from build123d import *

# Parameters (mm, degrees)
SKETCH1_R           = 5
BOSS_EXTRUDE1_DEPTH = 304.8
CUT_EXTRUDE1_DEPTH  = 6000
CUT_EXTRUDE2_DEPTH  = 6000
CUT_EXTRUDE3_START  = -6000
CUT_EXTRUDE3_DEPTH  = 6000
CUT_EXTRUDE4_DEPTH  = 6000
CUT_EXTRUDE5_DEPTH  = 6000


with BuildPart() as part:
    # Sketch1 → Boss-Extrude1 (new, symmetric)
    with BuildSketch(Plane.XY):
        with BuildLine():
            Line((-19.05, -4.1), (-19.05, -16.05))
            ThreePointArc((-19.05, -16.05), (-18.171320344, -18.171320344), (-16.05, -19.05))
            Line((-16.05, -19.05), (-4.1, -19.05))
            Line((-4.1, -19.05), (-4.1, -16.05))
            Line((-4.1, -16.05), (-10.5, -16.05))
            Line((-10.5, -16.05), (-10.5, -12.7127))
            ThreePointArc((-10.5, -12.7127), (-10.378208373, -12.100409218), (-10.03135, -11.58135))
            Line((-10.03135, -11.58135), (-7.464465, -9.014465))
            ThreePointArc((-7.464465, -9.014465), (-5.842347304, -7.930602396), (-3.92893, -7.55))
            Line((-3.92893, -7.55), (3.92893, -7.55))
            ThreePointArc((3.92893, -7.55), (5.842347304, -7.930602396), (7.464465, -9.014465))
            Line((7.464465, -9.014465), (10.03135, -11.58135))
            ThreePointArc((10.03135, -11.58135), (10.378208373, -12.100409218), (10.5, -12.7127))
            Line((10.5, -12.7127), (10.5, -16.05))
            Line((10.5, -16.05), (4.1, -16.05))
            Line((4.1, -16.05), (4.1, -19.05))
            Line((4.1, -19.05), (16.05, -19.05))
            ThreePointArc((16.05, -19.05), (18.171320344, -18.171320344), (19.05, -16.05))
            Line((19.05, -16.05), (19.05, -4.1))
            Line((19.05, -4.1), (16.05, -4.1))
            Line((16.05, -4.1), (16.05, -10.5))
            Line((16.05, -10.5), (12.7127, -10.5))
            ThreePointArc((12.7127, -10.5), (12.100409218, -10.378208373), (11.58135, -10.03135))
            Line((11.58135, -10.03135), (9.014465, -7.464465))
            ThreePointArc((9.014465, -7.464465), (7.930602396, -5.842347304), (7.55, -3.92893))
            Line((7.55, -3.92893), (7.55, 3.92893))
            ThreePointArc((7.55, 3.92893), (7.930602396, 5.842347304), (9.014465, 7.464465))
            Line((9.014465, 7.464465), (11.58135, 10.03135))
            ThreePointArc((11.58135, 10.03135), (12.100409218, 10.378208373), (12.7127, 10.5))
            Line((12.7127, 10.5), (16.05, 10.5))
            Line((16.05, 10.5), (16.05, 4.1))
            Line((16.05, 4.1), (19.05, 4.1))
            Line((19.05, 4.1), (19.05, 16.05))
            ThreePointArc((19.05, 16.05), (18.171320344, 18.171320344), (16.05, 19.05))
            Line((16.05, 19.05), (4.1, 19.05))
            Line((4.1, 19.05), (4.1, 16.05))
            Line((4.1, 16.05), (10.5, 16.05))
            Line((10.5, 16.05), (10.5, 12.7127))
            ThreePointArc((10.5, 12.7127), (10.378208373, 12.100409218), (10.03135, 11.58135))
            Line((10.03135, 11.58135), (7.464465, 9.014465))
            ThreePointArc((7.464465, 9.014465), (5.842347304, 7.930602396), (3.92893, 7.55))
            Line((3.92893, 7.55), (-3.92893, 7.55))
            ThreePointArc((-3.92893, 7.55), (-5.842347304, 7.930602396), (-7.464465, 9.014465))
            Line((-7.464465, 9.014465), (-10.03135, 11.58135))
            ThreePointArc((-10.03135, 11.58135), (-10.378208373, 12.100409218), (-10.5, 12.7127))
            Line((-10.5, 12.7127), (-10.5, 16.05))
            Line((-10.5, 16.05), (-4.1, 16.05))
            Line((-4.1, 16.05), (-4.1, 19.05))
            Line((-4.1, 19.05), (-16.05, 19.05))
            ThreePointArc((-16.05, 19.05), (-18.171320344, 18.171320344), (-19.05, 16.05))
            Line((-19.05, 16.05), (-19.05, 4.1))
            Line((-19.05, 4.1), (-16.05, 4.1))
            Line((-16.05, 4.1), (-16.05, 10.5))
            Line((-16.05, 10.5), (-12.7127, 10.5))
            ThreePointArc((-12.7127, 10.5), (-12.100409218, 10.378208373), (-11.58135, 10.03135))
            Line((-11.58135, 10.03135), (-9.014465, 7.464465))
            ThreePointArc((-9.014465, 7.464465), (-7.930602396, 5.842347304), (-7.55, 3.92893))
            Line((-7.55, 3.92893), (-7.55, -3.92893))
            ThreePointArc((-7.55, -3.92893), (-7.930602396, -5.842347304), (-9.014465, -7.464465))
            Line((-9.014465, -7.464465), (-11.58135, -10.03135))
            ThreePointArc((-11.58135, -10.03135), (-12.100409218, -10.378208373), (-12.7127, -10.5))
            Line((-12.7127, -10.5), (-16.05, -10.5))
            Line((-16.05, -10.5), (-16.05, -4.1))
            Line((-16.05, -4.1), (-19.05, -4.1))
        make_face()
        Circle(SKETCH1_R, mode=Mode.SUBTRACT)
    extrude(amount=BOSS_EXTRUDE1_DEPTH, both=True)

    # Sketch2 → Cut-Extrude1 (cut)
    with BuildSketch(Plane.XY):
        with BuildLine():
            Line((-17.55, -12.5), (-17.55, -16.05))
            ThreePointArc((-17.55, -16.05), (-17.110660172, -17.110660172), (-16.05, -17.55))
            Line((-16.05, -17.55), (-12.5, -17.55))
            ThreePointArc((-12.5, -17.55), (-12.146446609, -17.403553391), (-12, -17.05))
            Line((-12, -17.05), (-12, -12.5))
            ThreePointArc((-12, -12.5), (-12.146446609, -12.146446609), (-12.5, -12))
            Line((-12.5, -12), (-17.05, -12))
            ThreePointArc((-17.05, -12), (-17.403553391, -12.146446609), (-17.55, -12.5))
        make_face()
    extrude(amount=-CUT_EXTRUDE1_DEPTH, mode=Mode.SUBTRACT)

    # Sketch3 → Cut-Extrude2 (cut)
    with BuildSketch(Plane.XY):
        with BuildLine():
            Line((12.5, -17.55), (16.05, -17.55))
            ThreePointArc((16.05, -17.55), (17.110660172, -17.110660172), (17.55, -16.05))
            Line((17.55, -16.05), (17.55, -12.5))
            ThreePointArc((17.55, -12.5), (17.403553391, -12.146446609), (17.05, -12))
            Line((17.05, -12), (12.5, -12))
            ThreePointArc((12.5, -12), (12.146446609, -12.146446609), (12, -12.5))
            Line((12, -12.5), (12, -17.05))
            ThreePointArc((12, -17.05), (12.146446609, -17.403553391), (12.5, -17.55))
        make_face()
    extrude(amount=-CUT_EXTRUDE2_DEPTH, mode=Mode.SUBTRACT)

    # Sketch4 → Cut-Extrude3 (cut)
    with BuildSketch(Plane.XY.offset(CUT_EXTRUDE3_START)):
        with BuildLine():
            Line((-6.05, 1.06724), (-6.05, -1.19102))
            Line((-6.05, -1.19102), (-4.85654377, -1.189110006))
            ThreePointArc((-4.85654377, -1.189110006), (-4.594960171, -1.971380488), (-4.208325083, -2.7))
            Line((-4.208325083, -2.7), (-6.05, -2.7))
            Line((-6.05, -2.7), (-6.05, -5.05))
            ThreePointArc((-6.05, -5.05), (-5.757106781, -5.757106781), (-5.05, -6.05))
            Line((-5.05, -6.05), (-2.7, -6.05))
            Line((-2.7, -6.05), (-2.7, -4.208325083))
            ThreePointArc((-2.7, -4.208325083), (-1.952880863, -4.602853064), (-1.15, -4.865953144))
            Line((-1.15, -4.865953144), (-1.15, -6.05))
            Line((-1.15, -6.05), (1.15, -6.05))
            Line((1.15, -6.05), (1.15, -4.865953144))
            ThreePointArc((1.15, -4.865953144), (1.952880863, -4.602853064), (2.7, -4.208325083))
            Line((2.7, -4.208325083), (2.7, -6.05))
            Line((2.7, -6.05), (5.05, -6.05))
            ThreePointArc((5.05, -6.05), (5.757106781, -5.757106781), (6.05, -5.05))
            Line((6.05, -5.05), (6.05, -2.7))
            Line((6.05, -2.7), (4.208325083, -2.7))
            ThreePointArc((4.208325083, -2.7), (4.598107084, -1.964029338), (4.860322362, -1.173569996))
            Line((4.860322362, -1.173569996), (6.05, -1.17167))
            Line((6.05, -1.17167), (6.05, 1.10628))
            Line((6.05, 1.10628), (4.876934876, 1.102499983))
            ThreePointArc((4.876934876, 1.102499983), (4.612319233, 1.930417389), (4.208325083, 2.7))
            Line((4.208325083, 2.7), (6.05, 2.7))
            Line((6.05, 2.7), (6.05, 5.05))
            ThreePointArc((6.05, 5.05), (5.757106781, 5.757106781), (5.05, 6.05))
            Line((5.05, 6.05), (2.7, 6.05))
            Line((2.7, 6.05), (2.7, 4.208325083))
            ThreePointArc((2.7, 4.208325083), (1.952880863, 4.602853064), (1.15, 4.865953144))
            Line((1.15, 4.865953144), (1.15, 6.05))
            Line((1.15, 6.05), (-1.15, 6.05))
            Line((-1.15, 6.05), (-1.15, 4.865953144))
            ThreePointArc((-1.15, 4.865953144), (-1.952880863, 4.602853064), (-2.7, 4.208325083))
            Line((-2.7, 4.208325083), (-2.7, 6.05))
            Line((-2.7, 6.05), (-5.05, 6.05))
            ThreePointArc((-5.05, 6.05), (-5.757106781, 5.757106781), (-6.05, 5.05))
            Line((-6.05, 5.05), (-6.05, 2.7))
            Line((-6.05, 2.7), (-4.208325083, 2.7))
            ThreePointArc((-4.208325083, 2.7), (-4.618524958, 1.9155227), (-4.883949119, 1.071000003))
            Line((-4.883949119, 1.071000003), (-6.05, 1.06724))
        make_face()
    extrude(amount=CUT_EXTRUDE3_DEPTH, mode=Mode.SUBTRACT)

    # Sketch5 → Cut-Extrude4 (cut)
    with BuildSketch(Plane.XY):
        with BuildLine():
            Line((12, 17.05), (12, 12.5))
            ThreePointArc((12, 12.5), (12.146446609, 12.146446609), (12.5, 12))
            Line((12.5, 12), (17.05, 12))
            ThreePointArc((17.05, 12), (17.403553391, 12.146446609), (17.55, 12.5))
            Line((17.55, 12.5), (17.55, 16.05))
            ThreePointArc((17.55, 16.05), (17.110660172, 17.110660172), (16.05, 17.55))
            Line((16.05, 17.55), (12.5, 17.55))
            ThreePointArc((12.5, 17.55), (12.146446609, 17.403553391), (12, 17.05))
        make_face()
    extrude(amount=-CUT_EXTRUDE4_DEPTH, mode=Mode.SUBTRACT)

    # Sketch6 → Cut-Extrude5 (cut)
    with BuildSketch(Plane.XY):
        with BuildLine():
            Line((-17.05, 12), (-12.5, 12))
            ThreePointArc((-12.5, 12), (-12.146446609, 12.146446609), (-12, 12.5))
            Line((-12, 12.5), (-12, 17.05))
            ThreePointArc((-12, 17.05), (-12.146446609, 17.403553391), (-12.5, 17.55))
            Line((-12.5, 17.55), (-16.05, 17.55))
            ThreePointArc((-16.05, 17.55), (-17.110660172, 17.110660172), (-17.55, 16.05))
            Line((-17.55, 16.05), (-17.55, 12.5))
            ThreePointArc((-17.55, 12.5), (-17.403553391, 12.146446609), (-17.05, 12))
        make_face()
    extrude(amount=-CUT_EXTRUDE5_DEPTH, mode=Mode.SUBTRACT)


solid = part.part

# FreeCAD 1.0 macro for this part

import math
import FreeCAD as App
import Part
import Sketcher
from FreeCAD import Vector

doc = App.newDocument("Part")
params = doc.addObject("Spreadsheet::Sheet", "Params")
for row, (alias, value) in enumerate([
    ("sketch1_diameter", "10 mm"),
    ("sketch1_radius", "3 mm"),
    ("sketch1_width", "6.4 mm"),
    ("sketch1_width2", "11.95 mm"),
    ("pad1_length", "609.6 mm"),
    ("sketch2_radius", "1.5 mm"),
    ("sketch2_radius2", "0.5 mm"),
    ("sketch2_width", "3.55 mm"),
    ("pocket1_length", "6000 mm"),
    ("sketch3_radius", "1.5 mm"),
    ("sketch3_radius2", "0.5 mm"),
    ("sketch3_width", "3.55 mm"),
    ("pocket2_length", "6000 mm"),
    ("sketch4_radius", "5 mm"),
    ("sketch4_radius2", "1 mm"),
    ("sketch4_width", "2.3 mm"),
    ("sketch4_width2", "2.35 mm"),
    ("pocket3_length", "6000 mm"),
    ("sketch5_radius", "0.5 mm"),
    ("sketch5_radius2", "1.5 mm"),
    ("sketch5_width", "4.55 mm"),
    ("pocket4_length", "6000 mm"),
    ("sketch6_radius", "0.5 mm"),
    ("sketch6_radius2", "1.5 mm"),
    ("sketch6_width", "4.55 mm"),
    ("pocket5_length", "6000 mm"),
], start=1):
    params.set(f"A{row}", alias)
    params.set(f"B{row}", "=" + value)
    params.setAlias(f"B{row}", alias)

body = doc.addObject("PartDesign::Body", "Body")

# Sketch on XY plane
sketch1 = body.newObject("Sketcher::SketchObject", "Sketch")
sketch1.AttachmentSupport = (doc.getObject("XY_Plane"), [""])
sketch1.MapMode = "FlatFace"
sketch1.addGeometry([
    Part.LineSegment(Vector(-19.1, -4.1, 0), Vector(-19.1, -16.1, 0)),  # 0
    Part.ArcOfCircle(Part.Circle(Vector(-16.1, -16.1, 0), Vector(0, 0, 1), 3), math.radians(180), math.radians(270)),  # 1
    Part.LineSegment(Vector(-16.1, -19.1, 0), Vector(-4.1, -19.1, 0)),  # 2
    Part.LineSegment(Vector(-4.1, -19.1, 0), Vector(-4.1, -16.1, 0)),  # 3
    Part.LineSegment(Vector(-4.1, -16.1, 0), Vector(-10.5, -16.1, 0)),  # 4
    Part.LineSegment(Vector(-10.5, -16.1, 0), Vector(-10.5, -12.7, 0)),  # 5
    Part.ArcOfCircle(Part.Circle(Vector(-8.9, -12.7, 0), Vector(0, 0, 1), 1.6), math.radians(135), math.radians(180)),  # 6
    Part.LineSegment(Vector(-10, -11.6, 0), Vector(-7.5, -9, 0)),  # 7
    Part.ArcOfCircle(Part.Circle(Vector(-3.9, -12.6, 0), Vector(0, 0, 1), 5), math.radians(90), math.radians(135)),  # 8
    Part.LineSegment(Vector(-3.9, -7.5, 0), Vector(3.9, -7.5, 0)),  # 9
    Part.ArcOfCircle(Part.Circle(Vector(3.9, -12.6, 0), Vector(0, 0, 1), 5), math.radians(45), math.radians(90)),  # 10
    Part.LineSegment(Vector(7.5, -9, 0), Vector(10, -11.6, 0)),  # 11
    Part.ArcOfCircle(Part.Circle(Vector(8.9, -12.7, 0), Vector(0, 0, 1), 1.6), math.radians(0), math.radians(45)),  # 12
    Part.LineSegment(Vector(10.5, -12.7, 0), Vector(10.5, -16.1, 0)),  # 13
    Part.LineSegment(Vector(10.5, -16.1, 0), Vector(4.1, -16.1, 0)),  # 14
    Part.LineSegment(Vector(4.1, -16.1, 0), Vector(4.1, -19.1, 0)),  # 15
    Part.LineSegment(Vector(4.1, -19.1, 0), Vector(16.1, -19.1, 0)),  # 16
    Part.ArcOfCircle(Part.Circle(Vector(16.1, -16.1, 0), Vector(0, 0, 1), 3), math.radians(-90), math.radians(0)),  # 17
    Part.LineSegment(Vector(19.1, -16.1, 0), Vector(19.1, -4.1, 0)),  # 18
    Part.LineSegment(Vector(19.1, -4.1, 0), Vector(16.1, -4.1, 0)),  # 19
    Part.LineSegment(Vector(16.1, -4.1, 0), Vector(16.1, -10.5, 0)),  # 20
    Part.LineSegment(Vector(16.1, -10.5, 0), Vector(12.7, -10.5, 0)),  # 21
    Part.ArcOfCircle(Part.Circle(Vector(12.7, -8.9, 0), Vector(0, 0, 1), 1.6), math.radians(-135), math.radians(-90)),  # 22
    Part.LineSegment(Vector(11.6, -10, 0), Vector(9, -7.5, 0)),  # 23
    Part.ArcOfCircle(Part.Circle(Vector(12.6, -3.9, 0), Vector(0, 0, 1), 5), math.radians(-180), math.radians(-135)),  # 24
    Part.LineSegment(Vector(7.5, -3.9, 0), Vector(7.5, 3.9, 0)),  # 25
    Part.ArcOfCircle(Part.Circle(Vector(12.6, 3.9, 0), Vector(0, 0, 1), 5), math.radians(135), math.radians(180)),  # 26
    Part.LineSegment(Vector(9, 7.5, 0), Vector(11.6, 10, 0)),  # 27
    Part.ArcOfCircle(Part.Circle(Vector(12.7, 8.9, 0), Vector(0, 0, 1), 1.6), math.radians(90), math.radians(135)),  # 28
    Part.LineSegment(Vector(12.7, 10.5, 0), Vector(16.1, 10.5, 0)),  # 29
    Part.LineSegment(Vector(16.1, 10.5, 0), Vector(16.1, 4.1, 0)),  # 30
    Part.LineSegment(Vector(16.1, 4.1, 0), Vector(19.1, 4.1, 0)),  # 31
    Part.LineSegment(Vector(19.1, 4.1, 0), Vector(19.1, 16.1, 0)),  # 32
    Part.ArcOfCircle(Part.Circle(Vector(16.1, 16.1, 0), Vector(0, 0, 1), 3), math.radians(0), math.radians(90)),  # 33
    Part.LineSegment(Vector(16.1, 19.1, 0), Vector(4.1, 19.1, 0)),  # 34
    Part.LineSegment(Vector(4.1, 19.1, 0), Vector(4.1, 16.1, 0)),  # 35
    Part.LineSegment(Vector(4.1, 16.1, 0), Vector(10.5, 16.1, 0)),  # 36
    Part.LineSegment(Vector(10.5, 16.1, 0), Vector(10.5, 12.7, 0)),  # 37
    Part.ArcOfCircle(Part.Circle(Vector(8.9, 12.7, 0), Vector(0, 0, 1), 1.6), math.radians(-45), math.radians(0)),  # 38
    Part.LineSegment(Vector(10, 11.6, 0), Vector(7.5, 9, 0)),  # 39
    Part.ArcOfCircle(Part.Circle(Vector(3.9, 12.6, 0), Vector(0, 0, 1), 5), math.radians(-90), math.radians(-45)),  # 40
    Part.LineSegment(Vector(3.9, 7.5, 0), Vector(-3.9, 7.5, 0)),  # 41
    Part.ArcOfCircle(Part.Circle(Vector(-3.9, 12.6, 0), Vector(0, 0, 1), 5), math.radians(-135), math.radians(-90)),  # 42
    Part.LineSegment(Vector(-7.5, 9, 0), Vector(-10, 11.6, 0)),  # 43
    Part.ArcOfCircle(Part.Circle(Vector(-8.9, 12.7, 0), Vector(0, 0, 1), 1.6), math.radians(180), math.radians(225)),  # 44
    Part.LineSegment(Vector(-10.5, 12.7, 0), Vector(-10.5, 16.1, 0)),  # 45
    Part.LineSegment(Vector(-10.5, 16.1, 0), Vector(-4.1, 16.1, 0)),  # 46
    Part.LineSegment(Vector(-4.1, 16.1, 0), Vector(-4.1, 19.1, 0)),  # 47
    Part.LineSegment(Vector(-4.1, 19.1, 0), Vector(-16.1, 19.1, 0)),  # 48
    Part.ArcOfCircle(Part.Circle(Vector(-16.1, 16.1, 0), Vector(0, 0, 1), 3), math.radians(90), math.radians(180)),  # 49
    Part.LineSegment(Vector(-19.1, 16.1, 0), Vector(-19.1, 4.1, 0)),  # 50
    Part.LineSegment(Vector(-19.1, 4.1, 0), Vector(-16.1, 4.1, 0)),  # 51
    Part.LineSegment(Vector(-16.1, 4.1, 0), Vector(-16.1, 10.5, 0)),  # 52
    Part.LineSegment(Vector(-16.1, 10.5, 0), Vector(-12.7, 10.5, 0)),  # 53
    Part.ArcOfCircle(Part.Circle(Vector(-12.7, 8.9, 0), Vector(0, 0, 1), 1.6), math.radians(45), math.radians(90)),  # 54
    Part.LineSegment(Vector(-11.6, 10, 0), Vector(-9, 7.5, 0)),  # 55
    Part.ArcOfCircle(Part.Circle(Vector(-12.6, 3.9, 0), Vector(0, 0, 1), 5), math.radians(0), math.radians(45)),  # 56
    Part.LineSegment(Vector(-7.5, 3.9, 0), Vector(-7.5, -3.9, 0)),  # 57
    Part.ArcOfCircle(Part.Circle(Vector(-12.6, -3.9, 0), Vector(0, 0, 1), 5), math.radians(-45), math.radians(0)),  # 58
    Part.LineSegment(Vector(-9, -7.5, 0), Vector(-11.6, -10, 0)),  # 59
    Part.ArcOfCircle(Part.Circle(Vector(-12.7, -8.9, 0), Vector(0, 0, 1), 1.6), math.radians(-90), math.radians(-45)),  # 60
    Part.LineSegment(Vector(-12.7, -10.5, 0), Vector(-16.1, -10.5, 0)),  # 61
    Part.LineSegment(Vector(-16.1, -10.5, 0), Vector(-16.1, -4.1, 0)),  # 62
    Part.LineSegment(Vector(-16.1, -4.1, 0), Vector(-19.1, -4.1, 0)),  # 63
    Part.Circle(Vector(0, 0, 0), Vector(0, 0, 1), 5),  # 64
], False)
sketch1.addConstraint([
    Sketcher.Constraint("Tangent", 0, 2, 1, 1),
    Sketcher.Constraint("Tangent", 1, 2, 2, 1),
    Sketcher.Constraint("Coincident", 2, 2, 3, 1),
    Sketcher.Constraint("Coincident", 3, 2, 4, 1),
    Sketcher.Constraint("Coincident", 4, 2, 5, 1),
    Sketcher.Constraint("Coincident", 5, 2, 6, 2),
    Sketcher.Constraint("Coincident", 6, 1, 7, 1),
    Sketcher.Constraint("Tangent", 7, 2, 8, 2),
    Sketcher.Constraint("Tangent", 8, 1, 9, 1),
    Sketcher.Constraint("Tangent", 9, 2, 10, 2),
    Sketcher.Constraint("Tangent", 10, 1, 11, 1),
    Sketcher.Constraint("Coincident", 11, 2, 12, 2),
    Sketcher.Constraint("Coincident", 12, 1, 13, 1),
    Sketcher.Constraint("Coincident", 13, 2, 14, 1),
    Sketcher.Constraint("Coincident", 14, 2, 15, 1),
    Sketcher.Constraint("Coincident", 15, 2, 16, 1),
    Sketcher.Constraint("Tangent", 16, 2, 17, 1),
    Sketcher.Constraint("Tangent", 17, 2, 18, 1),
    Sketcher.Constraint("Coincident", 18, 2, 19, 1),
    Sketcher.Constraint("Coincident", 19, 2, 20, 1),
    Sketcher.Constraint("Coincident", 20, 2, 21, 1),
    Sketcher.Constraint("Coincident", 21, 2, 22, 2),
    Sketcher.Constraint("Coincident", 22, 1, 23, 1),
    Sketcher.Constraint("Tangent", 23, 2, 24, 2),
    Sketcher.Constraint("Tangent", 24, 1, 25, 1),
    Sketcher.Constraint("Tangent", 25, 2, 26, 2),
    Sketcher.Constraint("Tangent", 26, 1, 27, 1),
    Sketcher.Constraint("Coincident", 27, 2, 28, 2),
    Sketcher.Constraint("Coincident", 28, 1, 29, 1),
    Sketcher.Constraint("Coincident", 29, 2, 30, 1),
    Sketcher.Constraint("Coincident", 30, 2, 31, 1),
    Sketcher.Constraint("Coincident", 31, 2, 32, 1),
    Sketcher.Constraint("Tangent", 32, 2, 33, 1),
    Sketcher.Constraint("Tangent", 33, 2, 34, 1),
    Sketcher.Constraint("Coincident", 34, 2, 35, 1),
    Sketcher.Constraint("Coincident", 35, 2, 36, 1),
    Sketcher.Constraint("Coincident", 36, 2, 37, 1),
    Sketcher.Constraint("Coincident", 37, 2, 38, 2),
    Sketcher.Constraint("Coincident", 38, 1, 39, 1),
    Sketcher.Constraint("Tangent", 39, 2, 40, 2),
    Sketcher.Constraint("Tangent", 40, 1, 41, 1),
    Sketcher.Constraint("Tangent", 41, 2, 42, 2),
    Sketcher.Constraint("Tangent", 42, 1, 43, 1),
    Sketcher.Constraint("Coincident", 43, 2, 44, 2),
    Sketcher.Constraint("Coincident", 44, 1, 45, 1),
    Sketcher.Constraint("Coincident", 45, 2, 46, 1),
    Sketcher.Constraint("Coincident", 46, 2, 47, 1),
    Sketcher.Constraint("Coincident", 47, 2, 48, 1),
    Sketcher.Constraint("Tangent", 48, 2, 49, 1),
    Sketcher.Constraint("Tangent", 49, 2, 50, 1),
    Sketcher.Constraint("Coincident", 50, 2, 51, 1),
    Sketcher.Constraint("Coincident", 51, 2, 52, 1),
    Sketcher.Constraint("Coincident", 52, 2, 53, 1),
    Sketcher.Constraint("Coincident", 53, 2, 54, 2),
    Sketcher.Constraint("Coincident", 54, 1, 55, 1),
    Sketcher.Constraint("Tangent", 55, 2, 56, 2),
    Sketcher.Constraint("Tangent", 56, 1, 57, 1),
    Sketcher.Constraint("Tangent", 57, 2, 58, 2),
    Sketcher.Constraint("Tangent", 58, 1, 59, 1),
    Sketcher.Constraint("Coincident", 59, 2, 60, 2),
    Sketcher.Constraint("Coincident", 60, 1, 61, 1),
    Sketcher.Constraint("Coincident", 61, 2, 62, 1),
    Sketcher.Constraint("Coincident", 62, 2, 63, 1),
    Sketcher.Constraint("Coincident", 63, 2, 0, 1),
    Sketcher.Constraint("Vertical", 0),
    Sketcher.Constraint("Horizontal", 2),
    Sketcher.Constraint("Vertical", 3),
    Sketcher.Constraint("Horizontal", 4),
    Sketcher.Constraint("Vertical", 5),
    Sketcher.Constraint("Horizontal", 9),
    Sketcher.Constraint("Vertical", 13),
    Sketcher.Constraint("Horizontal", 14),
    Sketcher.Constraint("Vertical", 15),
    Sketcher.Constraint("Horizontal", 16),
    Sketcher.Constraint("Vertical", 18),
    Sketcher.Constraint("Horizontal", 19),
    Sketcher.Constraint("Vertical", 20),
    Sketcher.Constraint("Horizontal", 21),
    Sketcher.Constraint("Vertical", 25),
    Sketcher.Constraint("Horizontal", 29),
    Sketcher.Constraint("Vertical", 30),
    Sketcher.Constraint("Horizontal", 31),
    Sketcher.Constraint("Vertical", 32),
    Sketcher.Constraint("Horizontal", 34),
    Sketcher.Constraint("Vertical", 35),
    Sketcher.Constraint("Horizontal", 36),
    Sketcher.Constraint("Vertical", 37),
    Sketcher.Constraint("Horizontal", 41),
    Sketcher.Constraint("Vertical", 45),
    Sketcher.Constraint("Horizontal", 46),
    Sketcher.Constraint("Vertical", 47),
    Sketcher.Constraint("Horizontal", 48),
    Sketcher.Constraint("Vertical", 50),
    Sketcher.Constraint("Horizontal", 51),
    Sketcher.Constraint("Vertical", 52),
    Sketcher.Constraint("Horizontal", 53),
    Sketcher.Constraint("Vertical", 57),
    Sketcher.Constraint("Horizontal", 61),
    Sketcher.Constraint("Vertical", 62),
    Sketcher.Constraint("Horizontal", 63),
    Sketcher.Constraint("Coincident", 64, 3, -1, 1),
    Sketcher.Constraint("Equal", 8, 10),
    Sketcher.Constraint("Equal", 6, 12),
    Sketcher.Constraint("Equal", 1, 17),
    Sketcher.Constraint("Equal", 12, 22),
    Sketcher.Constraint("Equal", 10, 24),
    Sketcher.Constraint("Equal", 24, 26),
    Sketcher.Constraint("Equal", 22, 28),
    Sketcher.Constraint("Equal", 17, 33),
    Sketcher.Constraint("Equal", 28, 38),
    Sketcher.Constraint("Equal", 26, 40),
    Sketcher.Constraint("Equal", 40, 42),
    Sketcher.Constraint("Equal", 38, 44),
    Sketcher.Constraint("Equal", 33, 49),
    Sketcher.Constraint("Equal", 44, 54),
    Sketcher.Constraint("Equal", 42, 56),
    Sketcher.Constraint("Equal", 56, 58),
    Sketcher.Constraint("Equal", 54, 60),
    Sketcher.Constraint("Symmetric", 1, 3, 33, 3, -1, 1),
    Sketcher.Constraint("Symmetric", 6, 3, 38, 3, -1, 1),
    Sketcher.Constraint("Symmetric", 8, 3, 40, 3, -1, 1),
    Sketcher.Constraint("Symmetric", 12, 3, 44, 3, -1, 1),
    Sketcher.Constraint("Symmetric", 17, 3, 49, 3, -1, 1),
    Sketcher.Constraint("Symmetric", 22, 3, 54, 3, -1, 1),
    Sketcher.Constraint("Symmetric", 24, 3, 56, 3, -1, 1),
    Sketcher.Constraint("Symmetric", 28, 3, 60, 3, -1, 1),
    Sketcher.Constraint("Symmetric", 3, 2, 35, 2, -1, 1),
    Sketcher.Constraint("Symmetric", 14, 2, 46, 2, -1, 1),
    Sketcher.Constraint("Symmetric", 19, 2, 51, 2, -1, 1),
    Sketcher.Constraint("Symmetric", 30, 2, 62, 2, -1, 1),
    Sketcher.Constraint("Symmetric", 6, 3, 12, 3, -2),
    Sketcher.Constraint("Symmetric", 1, 3, 17, 3, -2),
    Sketcher.Constraint("Symmetric", 28, 3, 54, 3, -2),
    Sketcher.Constraint("Symmetric", 3, 2, 14, 2, -2),
    Sketcher.Constraint("Symmetric", 30, 2, 51, 2, -2),
    Sketcher.Constraint("Perpendicular", 7, 11),
    Sketcher.Constraint("Parallel", 11, 23),
    Sketcher.Constraint("Perpendicular", 23, 27),
    Sketcher.Constraint("Perpendicular", 39, 43),
    Sketcher.Constraint("Perpendicular", 55, 59),
    Sketcher.Constraint("Horizontal", 26, 3, 56, 3),
    Sketcher.Constraint("Horizontal", 0, 2, 3, 2),
    Sketcher.Constraint("Horizontal", 6, 1, 11, 2),
    Sketcher.Constraint("Horizontal", 5, 2, 12, 1),
    Sketcher.Constraint("Horizontal", 38, 1, 43, 2),
    Sketcher.Constraint("Horizontal", 37, 2, 44, 1),
    Sketcher.Constraint("Horizontal", 27, 2, 54, 1),
    Sketcher.Constraint("Horizontal", 22, 1, 59, 2),
    Sketcher.Constraint("Vertical", 16, 2, 19, 2),
    Sketcher.Constraint("Vertical", 22, 1, 27, 2),
    Sketcher.Constraint("Vertical", 21, 2, 28, 1),
    Sketcher.Constraint("Vertical", 11, 2, 38, 1),
    Sketcher.Constraint("Vertical", 53, 2, 60, 1),
    Sketcher.Constraint("Equal", 29, 53),
    Sketcher.Constraint("Equal", 48, 0),
    Sketcher.Constraint("Equal", 61, 5),
    Sketcher.Constraint("Equal", 46, 20),
    Sketcher.Constraint("Equal", 41, 25),
    Sketcher.Constraint("Equal", 13, 37),
    Sketcher.Constraint("Equal", 11, 23),
    Sketcher.Constraint("Diameter", 64, 10.0),
    Sketcher.Constraint("Radius", 1, 3.0),
    Sketcher.Constraint("DistanceX", 4, 2, 4, 1, 6.4),
    Sketcher.Constraint("DistanceX", 2, 1, 2, 2, 11.95),
    Sketcher.Constraint("DistanceX", 2, 2, -1, 1, 4.1),
    Sketcher.Constraint("DistanceY", 18, 2, -1, 1, 4.1),
    Sketcher.Constraint("DistanceY", 8, 1, -1, 1, 7.55),
    Sketcher.Constraint("DistanceX", -1, 1, 24, 1, 7.55),
    Sketcher.Constraint("Radius", 8, 5.00001),
    Sketcher.Constraint("DistanceX", 21, 2, 21, 1, 3.3373),
    Sketcher.Constraint("Radius", 6, 1.599806),
    Sketcher.Constraint("DistanceX", 9, 1, 9, 2, 7.85786),
    Sketcher.Constraint("DistanceX", 6, 1, -1, 1, 10.03135),
])
sketch1.setExpression("Constraints[160]", "Params.sketch1_diameter")
sketch1.setExpression("Constraints[161]", "Params.sketch1_radius")
sketch1.setExpression("Constraints[162]", "Params.sketch1_width")
sketch1.setExpression("Constraints[163]", "Params.sketch1_width2")
pad1 = body.newObject("PartDesign::Pad", "Pad")
pad1.Profile = sketch1
pad1.setExpression("Length", "Params.pad1_length")
pad1.Midplane = True

# Sketch on XY plane
sketch2 = body.newObject("Sketcher::SketchObject", "Sketch001")
sketch2.AttachmentSupport = (doc.getObject("XY_Plane"), [""])
sketch2.MapMode = "FlatFace"
sketch2.addGeometry([
    Part.LineSegment(Vector(-17.55, -12.5, 0), Vector(-17.55, -16.05, 0)),  # 0
    Part.ArcOfCircle(Part.Circle(Vector(-16.05, -16.05, 0), Vector(0, 0, 1), 1.5), math.radians(180), math.radians(270)),  # 1
    Part.LineSegment(Vector(-16.05, -17.55, 0), Vector(-12.5, -17.55, 0)),  # 2
    Part.ArcOfCircle(Part.Circle(Vector(-12.5, -17.05, 0), Vector(0, 0, 1), 0.5), math.radians(-90), math.radians(0)),  # 3
    Part.LineSegment(Vector(-12, -17.05, 0), Vector(-12, -12.5, 0)),  # 4
    Part.ArcOfCircle(Part.Circle(Vector(-12.5, -12.5, 0), Vector(0, 0, 1), 0.5), math.radians(0), math.radians(90)),  # 5
    Part.LineSegment(Vector(-12.5, -12, 0), Vector(-17.05, -12, 0)),  # 6
    Part.ArcOfCircle(Part.Circle(Vector(-17.05, -12.5, 0), Vector(0, 0, 1), 0.5), math.radians(90), math.radians(180)),  # 7
], False)
sketch2.addConstraint([
    Sketcher.Constraint("Tangent", 0, 2, 1, 1),
    Sketcher.Constraint("Tangent", 1, 2, 2, 1),
    Sketcher.Constraint("Tangent", 2, 2, 3, 1),
    Sketcher.Constraint("Tangent", 3, 2, 4, 1),
    Sketcher.Constraint("Tangent", 4, 2, 5, 1),
    Sketcher.Constraint("Tangent", 5, 2, 6, 1),
    Sketcher.Constraint("Tangent", 6, 2, 7, 1),
    Sketcher.Constraint("Tangent", 7, 2, 0, 1),
    Sketcher.Constraint("Vertical", 0),
    Sketcher.Constraint("Horizontal", 2),
    Sketcher.Constraint("Vertical", 4),
    Sketcher.Constraint("Horizontal", 6),
    Sketcher.Constraint("Equal", 3, 5),
    Sketcher.Constraint("Equal", 5, 7),
    Sketcher.Constraint("Equal", 2, 0),
    Sketcher.Constraint("Radius", 1, 1.5),
    Sketcher.Constraint("Radius", 3, 0.5),
    Sketcher.Constraint("DistanceX", 3, 2, -1, 1, 12.0),
    Sketcher.Constraint("DistanceY", 5, 2, -1, 1, 12.0),
    Sketcher.Constraint("DistanceX", 2, 1, 2, 2, 3.55),
])
sketch2.setExpression("Constraints[15]", "Params.sketch2_radius")
sketch2.setExpression("Constraints[16]", "Params.sketch2_radius2")
sketch2.setExpression("Constraints[19]", "Params.sketch2_width")
pocket1 = body.newObject("PartDesign::Pocket", "Pocket")
pocket1.Profile = sketch2
pocket1.setExpression("Length", "Params.pocket1_length")

# Sketch on XY plane
sketch3 = body.newObject("Sketcher::SketchObject", "Sketch002")
sketch3.AttachmentSupport = (doc.getObject("XY_Plane"), [""])
sketch3.MapMode = "FlatFace"
sketch3.addGeometry([
    Part.LineSegment(Vector(12.5, -17.55, 0), Vector(16.05, -17.55, 0)),  # 0
    Part.ArcOfCircle(Part.Circle(Vector(16.05, -16.05, 0), Vector(0, 0, 1), 1.5), math.radians(-90), math.radians(0)),  # 1
    Part.LineSegment(Vector(17.55, -16.05, 0), Vector(17.55, -12.5, 0)),  # 2
    Part.ArcOfCircle(Part.Circle(Vector(17.05, -12.5, 0), Vector(0, 0, 1), 0.5), math.radians(0), math.radians(90)),  # 3
    Part.LineSegment(Vector(17.05, -12, 0), Vector(12.5, -12, 0)),  # 4
    Part.ArcOfCircle(Part.Circle(Vector(12.5, -12.5, 0), Vector(0, 0, 1), 0.5), math.radians(90), math.radians(180)),  # 5
    Part.LineSegment(Vector(12, -12.5, 0), Vector(12, -17.05, 0)),  # 6
    Part.ArcOfCircle(Part.Circle(Vector(12.5, -17.05, 0), Vector(0, 0, 1), 0.5), math.radians(180), math.radians(270)),  # 7
], False)
sketch3.addConstraint([
    Sketcher.Constraint("Tangent", 0, 2, 1, 1),
    Sketcher.Constraint("Tangent", 1, 2, 2, 1),
    Sketcher.Constraint("Tangent", 2, 2, 3, 1),
    Sketcher.Constraint("Tangent", 3, 2, 4, 1),
    Sketcher.Constraint("Tangent", 4, 2, 5, 1),
    Sketcher.Constraint("Tangent", 5, 2, 6, 1),
    Sketcher.Constraint("Tangent", 6, 2, 7, 1),
    Sketcher.Constraint("Tangent", 7, 2, 0, 1),
    Sketcher.Constraint("Horizontal", 0),
    Sketcher.Constraint("Vertical", 2),
    Sketcher.Constraint("Horizontal", 4),
    Sketcher.Constraint("Vertical", 6),
    Sketcher.Constraint("Equal", 3, 5),
    Sketcher.Constraint("Equal", 5, 7),
    Sketcher.Constraint("Equal", 0, 2),
    Sketcher.Constraint("Radius", 1, 1.5),
    Sketcher.Constraint("Radius", 3, 0.5),
    Sketcher.Constraint("DistanceY", 3, 2, -1, 1, 12.0),
    Sketcher.Constraint("DistanceX", -1, 1, 5, 2, 12.0),
    Sketcher.Constraint("DistanceX", 0, 1, 0, 2, 3.55),
])
sketch3.setExpression("Constraints[15]", "Params.sketch3_radius")
sketch3.setExpression("Constraints[16]", "Params.sketch3_radius2")
sketch3.setExpression("Constraints[19]", "Params.sketch3_width")
pocket2 = body.newObject("PartDesign::Pocket", "Pocket001")
pocket2.Profile = sketch3
pocket2.setExpression("Length", "Params.pocket2_length")

# Sketch on XY plane
sketch4 = body.newObject("Sketcher::SketchObject", "Sketch003")
sketch4.AttachmentSupport = (doc.getObject("XY_Plane"), [""])
sketch4.MapMode = "FlatFace"
sketch4.AttachmentOffset = App.Placement(Vector(0, 0, -6000), App.Rotation())
sketch4.addGeometry([
    Part.LineSegment(Vector(-6, 1.1, 0), Vector(-6, -1.2, 0)),  # 0
    Part.LineSegment(Vector(-6, -1.2, 0), Vector(-4.9, -1.2, 0)),  # 1
    Part.ArcOfCircle(Part.Circle(Vector(0, 0, 0), Vector(0, 0, 1), 5), math.radians(-166.24), math.radians(-147.32)),  # 2
    Part.LineSegment(Vector(-4.2, -2.7, 0), Vector(-6, -2.7, 0)),  # 3
    Part.LineSegment(Vector(-6, -2.7, 0), Vector(-6, -5, 0)),  # 4
    Part.ArcOfCircle(Part.Circle(Vector(-5, -5, 0), Vector(0, 0, 1), 1), math.radians(-180), math.radians(-90)),  # 5
    Part.LineSegment(Vector(-5, -6, 0), Vector(-2.7, -6, 0)),  # 6
    Part.LineSegment(Vector(-2.7, -6, 0), Vector(-2.7, -4.2, 0)),  # 7
    Part.ArcOfCircle(Part.Circle(Vector(0, 0, 0), Vector(0, 0, 1), 5), math.radians(-122.68), math.radians(-103.3)),  # 8
    Part.LineSegment(Vector(-1.1, -4.9, 0), Vector(-1.1, -6, 0)),  # 9
    Part.LineSegment(Vector(-1.1, -6, 0), Vector(1.1, -6, 0)),  # 10
    Part.LineSegment(Vector(1.1, -6, 0), Vector(1.1, -4.9, 0)),  # 11
    Part.ArcOfCircle(Part.Circle(Vector(0, 0, 0), Vector(0, 0, 1), 5), math.radians(-76.7), math.radians(-57.32)),  # 12
    Part.LineSegment(Vector(2.7, -4.2, 0), Vector(2.7, -6, 0)),  # 13
    Part.LineSegment(Vector(2.7, -6, 0), Vector(5, -6, 0)),  # 14
    Part.ArcOfCircle(Part.Circle(Vector(5, -5, 0), Vector(0, 0, 1), 1), math.radians(-90), math.radians(0)),  # 15
    Part.LineSegment(Vector(6, -5, 0), Vector(6, -2.7, 0)),  # 16
    Part.LineSegment(Vector(6, -2.7, 0), Vector(4.2, -2.7, 0)),  # 17
    Part.ArcOfCircle(Part.Circle(Vector(0, 0, 0), Vector(0, 0, 1), 5), math.radians(-32.68), math.radians(-13.57)),  # 18
    Part.LineSegment(Vector(4.9, -1.2, 0), Vector(6, -1.2, 0)),  # 19
    Part.LineSegment(Vector(6, -1.2, 0), Vector(6, 1.1, 0)),  # 20
    Part.LineSegment(Vector(6, 1.1, 0), Vector(4.9, 1.1, 0)),  # 21
    Part.ArcOfCircle(Part.Circle(Vector(0, 0, 0), Vector(0, 0, 1), 5), math.radians(12.74), math.radians(32.68)),  # 22
    Part.LineSegment(Vector(4.2, 2.7, 0), Vector(6, 2.7, 0)),  # 23
    Part.LineSegment(Vector(6, 2.7, 0), Vector(6, 5, 0)),  # 24
    Part.ArcOfCircle(Part.Circle(Vector(5, 5, 0), Vector(0, 0, 1), 1), math.radians(0), math.radians(90)),  # 25
    Part.LineSegment(Vector(5, 6, 0), Vector(2.7, 6, 0)),  # 26
    Part.LineSegment(Vector(2.7, 6, 0), Vector(2.7, 4.2, 0)),  # 27
    Part.ArcOfCircle(Part.Circle(Vector(0, 0, 0), Vector(0, 0, 1), 5), math.radians(57.32), math.radians(76.7)),  # 28
    Part.LineSegment(Vector(1.1, 4.9, 0), Vector(1.1, 6, 0)),  # 29
    Part.LineSegment(Vector(1.1, 6, 0), Vector(-1.1, 6, 0)),  # 30
    Part.LineSegment(Vector(-1.1, 6, 0), Vector(-1.1, 4.9, 0)),  # 31
    Part.ArcOfCircle(Part.Circle(Vector(0, 0, 0), Vector(0, 0, 1), 5), math.radians(103.3), math.radians(122.68)),  # 32
    Part.LineSegment(Vector(-2.7, 4.2, 0), Vector(-2.7, 6, 0)),  # 33
    Part.LineSegment(Vector(-2.7, 6, 0), Vector(-5, 6, 0)),  # 34
    Part.ArcOfCircle(Part.Circle(Vector(-5, 5, 0), Vector(0, 0, 1), 1), math.radians(90), math.radians(180)),  # 35
    Part.LineSegment(Vector(-6, 5, 0), Vector(-6, 2.7, 0)),  # 36
    Part.LineSegment(Vector(-6, 2.7, 0), Vector(-4.2, 2.7, 0)),  # 37
    Part.ArcOfCircle(Part.Circle(Vector(0, 0, 0), Vector(0, 0, 1), 5), math.radians(147), math.radians(168)),  # 38
    Part.LineSegment(Vector(-4.9, 1.1, 0), Vector(-6, 1.1, 0)),  # 39
], False)
sketch4.addConstraint([
    Sketcher.Constraint("Coincident", 0, 2, 1, 1),
    Sketcher.Constraint("Coincident", 1, 2, 2, 1),
    Sketcher.Constraint("Coincident", 2, 2, 3, 1),
    Sketcher.Constraint("Coincident", 3, 2, 4, 1),
    Sketcher.Constraint("Tangent", 4, 2, 5, 1),
    Sketcher.Constraint("Tangent", 5, 2, 6, 1),
    Sketcher.Constraint("Coincident", 6, 2, 7, 1),
    Sketcher.Constraint("Coincident", 7, 2, 8, 1),
    Sketcher.Constraint("Coincident", 8, 2, 9, 1),
    Sketcher.Constraint("Coincident", 9, 2, 10, 1),
    Sketcher.Constraint("Coincident", 10, 2, 11, 1),
    Sketcher.Constraint("Coincident", 11, 2, 12, 1),
    Sketcher.Constraint("Coincident", 12, 2, 13, 1),
    Sketcher.Constraint("Coincident", 13, 2, 14, 1),
    Sketcher.Constraint("Tangent", 14, 2, 15, 1),
    Sketcher.Constraint("Tangent", 15, 2, 16, 1),
    Sketcher.Constraint("Coincident", 16, 2, 17, 1),
    Sketcher.Constraint("Coincident", 17, 2, 18, 1),
    Sketcher.Constraint("Coincident", 18, 2, 19, 1),
    Sketcher.Constraint("Coincident", 19, 2, 20, 1),
    Sketcher.Constraint("Coincident", 20, 2, 21, 1),
    Sketcher.Constraint("Coincident", 21, 2, 22, 1),
    Sketcher.Constraint("Coincident", 22, 2, 23, 1),
    Sketcher.Constraint("Coincident", 23, 2, 24, 1),
    Sketcher.Constraint("Tangent", 24, 2, 25, 1),
    Sketcher.Constraint("Tangent", 25, 2, 26, 1),
    Sketcher.Constraint("Coincident", 26, 2, 27, 1),
    Sketcher.Constraint("Coincident", 27, 2, 28, 1),
    Sketcher.Constraint("Coincident", 28, 2, 29, 1),
    Sketcher.Constraint("Coincident", 29, 2, 30, 1),
    Sketcher.Constraint("Coincident", 30, 2, 31, 1),
    Sketcher.Constraint("Coincident", 31, 2, 32, 1),
    Sketcher.Constraint("Coincident", 32, 2, 33, 1),
    Sketcher.Constraint("Coincident", 33, 2, 34, 1),
    Sketcher.Constraint("Tangent", 34, 2, 35, 1),
    Sketcher.Constraint("Tangent", 35, 2, 36, 1),
    Sketcher.Constraint("Coincident", 36, 2, 37, 1),
    Sketcher.Constraint("Coincident", 37, 2, 38, 1),
    Sketcher.Constraint("Coincident", 38, 2, 39, 1),
    Sketcher.Constraint("Coincident", 39, 2, 0, 1),
    Sketcher.Constraint("Vertical", 0),
    Sketcher.Constraint("Horizontal", 3),
    Sketcher.Constraint("Vertical", 4),
    Sketcher.Constraint("Horizontal", 6),
    Sketcher.Constraint("Vertical", 7),
    Sketcher.Constraint("Vertical", 9),
    Sketcher.Constraint("Horizontal", 10),
    Sketcher.Constraint("Vertical", 11),
    Sketcher.Constraint("Vertical", 13),
    Sketcher.Constraint("Horizontal", 14),
    Sketcher.Constraint("Vertical", 16),
    Sketcher.Constraint("Horizontal", 17),
    Sketcher.Constraint("Vertical", 20),
    Sketcher.Constraint("Horizontal", 23),
    Sketcher.Constraint("Vertical", 24),
    Sketcher.Constraint("Horizontal", 26),
    Sketcher.Constraint("Vertical", 27),
    Sketcher.Constraint("Vertical", 29),
    Sketcher.Constraint("Horizontal", 30),
    Sketcher.Constraint("Vertical", 31),
    Sketcher.Constraint("Vertical", 33),
    Sketcher.Constraint("Horizontal", 34),
    Sketcher.Constraint("Vertical", 36),
    Sketcher.Constraint("Horizontal", 37),
    Sketcher.Constraint("Coincident", 2, 3, -1, 1),
    Sketcher.Constraint("Coincident", 8, 3, -1, 1),
    Sketcher.Constraint("Coincident", 12, 3, -1, 1),
    Sketcher.Constraint("Coincident", 18, 3, -1, 1),
    Sketcher.Constraint("Coincident", 22, 3, -1, 1),
    Sketcher.Constraint("Coincident", 28, 3, -1, 1),
    Sketcher.Constraint("Coincident", 32, 3, -1, 1),
    Sketcher.Constraint("Coincident", 38, 3, -1, 1),
    Sketcher.Constraint("Equal", 2, 8),
    Sketcher.Constraint("Equal", 8, 12),
    Sketcher.Constraint("Equal", 5, 15),
    Sketcher.Constraint("Equal", 12, 18),
    Sketcher.Constraint("Equal", 18, 22),
    Sketcher.Constraint("Equal", 15, 25),
    Sketcher.Constraint("Equal", 22, 28),
    Sketcher.Constraint("Equal", 28, 32),
    Sketcher.Constraint("Equal", 25, 35),
    Sketcher.Constraint("Equal", 32, 38),
    Sketcher.Constraint("Symmetric", 5, 3, 25, 3, -1, 1),
    Sketcher.Constraint("Symmetric", 15, 3, 35, 3, -1, 1),
    Sketcher.Constraint("Symmetric", 9, 2, 29, 2, -1, 1),
    Sketcher.Constraint("Symmetric", 5, 3, 15, 3, -2),
    Sketcher.Constraint("Horizontal", 6, 2, 9, 2),
    Sketcher.Constraint("Horizontal", 8, 2, 11, 2),
    Sketcher.Constraint("Horizontal", 7, 2, 12, 2),
    Sketcher.Constraint("Horizontal", 3, 2, 16, 2),
    Sketcher.Constraint("Horizontal", 28, 2, 31, 2),
    Sketcher.Constraint("Horizontal", 27, 2, 32, 2),
    Sketcher.Constraint("Horizontal", 23, 2, 36, 2),
    Sketcher.Constraint("Vertical", 0, 2, 3, 2),
    Sketcher.Constraint("Vertical", 16, 2, 19, 2),
    Sketcher.Constraint("Vertical", 17, 2, 22, 2),
    Sketcher.Constraint("Vertical", 13, 2, 26, 2),
    Sketcher.Constraint("Equal", 34, 4),
    Sketcher.Constraint("Equal", 37, 7),
    Sketcher.Constraint("Radius", 2, 5.0),
    Sketcher.Constraint("Radius", 5, 1.0),
    Sketcher.Constraint("DistanceX", 10, 1, 10, 2, 2.3),
    Sketcher.Constraint("DistanceX", 6, 1, 6, 2, 2.35),
    Sketcher.Constraint("DistanceY", 2, 2, -1, 1, 2.7),
    Sketcher.Constraint("DistanceY", -1, 1, 38, 2, 1.071),
    Sketcher.Constraint("DistanceY", 0, 2, 0, 1, 2.25826),
    Sketcher.Constraint("DistanceY", 20, 1, 20, 2, 2.27795),
    Sketcher.Constraint("DistanceY", -1, 1, 21, 2, 1.1025),
    Sketcher.Constraint("DistanceY", 18, 2, 19, 2, 0.0019),
    Sketcher.Constraint("Distance", 19, 1.189679),
    Sketcher.Constraint("DistanceY", 0, 2, -1, 1, 1.19102),
    Sketcher.Constraint("DistanceY", 1, 2, -1, 1, 1.18911),
])
sketch4.setExpression("Constraints[99]", "Params.sketch4_radius")
sketch4.setExpression("Constraints[100]", "Params.sketch4_radius2")
sketch4.setExpression("Constraints[101]", "Params.sketch4_width")
sketch4.setExpression("Constraints[102]", "Params.sketch4_width2")
pocket3 = body.newObject("PartDesign::Pocket", "Pocket002")
pocket3.Profile = sketch4
pocket3.setExpression("Length", "Params.pocket3_length")
pocket3.Reversed = True

# Sketch on XY plane
sketch5 = body.newObject("Sketcher::SketchObject", "Sketch004")
sketch5.AttachmentSupport = (doc.getObject("XY_Plane"), [""])
sketch5.MapMode = "FlatFace"
sketch5.addGeometry([
    Part.LineSegment(Vector(12, 17.05, 0), Vector(12, 12.5, 0)),  # 0
    Part.ArcOfCircle(Part.Circle(Vector(12.5, 12.5, 0), Vector(0, 0, 1), 0.5), math.radians(180), math.radians(270)),  # 1
    Part.LineSegment(Vector(12.5, 12, 0), Vector(17.05, 12, 0)),  # 2
    Part.ArcOfCircle(Part.Circle(Vector(17.05, 12.5, 0), Vector(0, 0, 1), 0.5), math.radians(-90), math.radians(0)),  # 3
    Part.LineSegment(Vector(17.55, 12.5, 0), Vector(17.55, 16.05, 0)),  # 4
    Part.ArcOfCircle(Part.Circle(Vector(16.05, 16.05, 0), Vector(0, 0, 1), 1.5), math.radians(0), math.radians(90)),  # 5
    Part.LineSegment(Vector(16.05, 17.55, 0), Vector(12.5, 17.55, 0)),  # 6
    Part.ArcOfCircle(Part.Circle(Vector(12.5, 17.05, 0), Vector(0, 0, 1), 0.5), math.radians(90), math.radians(180)),  # 7
], False)
sketch5.addConstraint([
    Sketcher.Constraint("Tangent", 0, 2, 1, 1),
    Sketcher.Constraint("Tangent", 1, 2, 2, 1),
    Sketcher.Constraint("Tangent", 2, 2, 3, 1),
    Sketcher.Constraint("Tangent", 3, 2, 4, 1),
    Sketcher.Constraint("Tangent", 4, 2, 5, 1),
    Sketcher.Constraint("Tangent", 5, 2, 6, 1),
    Sketcher.Constraint("Tangent", 6, 2, 7, 1),
    Sketcher.Constraint("Tangent", 7, 2, 0, 1),
    Sketcher.Constraint("Vertical", 0),
    Sketcher.Constraint("Horizontal", 2),
    Sketcher.Constraint("Vertical", 4),
    Sketcher.Constraint("Horizontal", 6),
    Sketcher.Constraint("Equal", 1, 3),
    Sketcher.Constraint("Equal", 3, 7),
    Sketcher.Constraint("Equal", 2, 0),
    Sketcher.Constraint("Radius", 1, 0.5),
    Sketcher.Constraint("Radius", 5, 1.5),
    Sketcher.Constraint("DistanceX", -1, 1, 0, 2, 12.0),
    Sketcher.Constraint("DistanceY", -1, 1, 1, 2, 12.0),
    Sketcher.Constraint("DistanceX", 2, 1, 2, 2, 4.55),
])
sketch5.setExpression("Constraints[15]", "Params.sketch5_radius")
sketch5.setExpression("Constraints[16]", "Params.sketch5_radius2")
sketch5.setExpression("Constraints[19]", "Params.sketch5_width")
pocket4 = body.newObject("PartDesign::Pocket", "Pocket003")
pocket4.Profile = sketch5
pocket4.setExpression("Length", "Params.pocket4_length")

# Sketch on XY plane
sketch6 = body.newObject("Sketcher::SketchObject", "Sketch005")
sketch6.AttachmentSupport = (doc.getObject("XY_Plane"), [""])
sketch6.MapMode = "FlatFace"
sketch6.addGeometry([
    Part.LineSegment(Vector(-17.05, 12, 0), Vector(-12.5, 12, 0)),  # 0
    Part.ArcOfCircle(Part.Circle(Vector(-12.5, 12.5, 0), Vector(0, 0, 1), 0.5), math.radians(-90), math.radians(0)),  # 1
    Part.LineSegment(Vector(-12, 12.5, 0), Vector(-12, 17.05, 0)),  # 2
    Part.ArcOfCircle(Part.Circle(Vector(-12.5, 17.05, 0), Vector(0, 0, 1), 0.5), math.radians(0), math.radians(90)),  # 3
    Part.LineSegment(Vector(-12.5, 17.55, 0), Vector(-16.05, 17.55, 0)),  # 4
    Part.ArcOfCircle(Part.Circle(Vector(-16.05, 16.05, 0), Vector(0, 0, 1), 1.5), math.radians(90), math.radians(180)),  # 5
    Part.LineSegment(Vector(-17.55, 16.05, 0), Vector(-17.55, 12.5, 0)),  # 6
    Part.ArcOfCircle(Part.Circle(Vector(-17.05, 12.5, 0), Vector(0, 0, 1), 0.5), math.radians(180), math.radians(270)),  # 7
], False)
sketch6.addConstraint([
    Sketcher.Constraint("Tangent", 0, 2, 1, 1),
    Sketcher.Constraint("Tangent", 1, 2, 2, 1),
    Sketcher.Constraint("Tangent", 2, 2, 3, 1),
    Sketcher.Constraint("Tangent", 3, 2, 4, 1),
    Sketcher.Constraint("Tangent", 4, 2, 5, 1),
    Sketcher.Constraint("Tangent", 5, 2, 6, 1),
    Sketcher.Constraint("Tangent", 6, 2, 7, 1),
    Sketcher.Constraint("Tangent", 7, 2, 0, 1),
    Sketcher.Constraint("Horizontal", 0),
    Sketcher.Constraint("Vertical", 2),
    Sketcher.Constraint("Horizontal", 4),
    Sketcher.Constraint("Vertical", 6),
    Sketcher.Constraint("Equal", 1, 3),
    Sketcher.Constraint("Equal", 3, 7),
    Sketcher.Constraint("Equal", 0, 2),
    Sketcher.Constraint("Radius", 1, 0.5),
    Sketcher.Constraint("Radius", 5, 1.5),
    Sketcher.Constraint("DistanceY", -1, 1, 0, 2, 12.0),
    Sketcher.Constraint("DistanceX", 1, 2, -1, 1, 12.0),
    Sketcher.Constraint("DistanceX", 0, 1, 0, 2, 4.55),
])
sketch6.setExpression("Constraints[15]", "Params.sketch6_radius")
sketch6.setExpression("Constraints[16]", "Params.sketch6_radius2")
sketch6.setExpression("Constraints[19]", "Params.sketch6_width")
pocket5 = body.newObject("PartDesign::Pocket", "Pocket004")
pocket5.Profile = sketch6
pocket5.setExpression("Length", "Params.pocket5_length")

doc.recompute()
